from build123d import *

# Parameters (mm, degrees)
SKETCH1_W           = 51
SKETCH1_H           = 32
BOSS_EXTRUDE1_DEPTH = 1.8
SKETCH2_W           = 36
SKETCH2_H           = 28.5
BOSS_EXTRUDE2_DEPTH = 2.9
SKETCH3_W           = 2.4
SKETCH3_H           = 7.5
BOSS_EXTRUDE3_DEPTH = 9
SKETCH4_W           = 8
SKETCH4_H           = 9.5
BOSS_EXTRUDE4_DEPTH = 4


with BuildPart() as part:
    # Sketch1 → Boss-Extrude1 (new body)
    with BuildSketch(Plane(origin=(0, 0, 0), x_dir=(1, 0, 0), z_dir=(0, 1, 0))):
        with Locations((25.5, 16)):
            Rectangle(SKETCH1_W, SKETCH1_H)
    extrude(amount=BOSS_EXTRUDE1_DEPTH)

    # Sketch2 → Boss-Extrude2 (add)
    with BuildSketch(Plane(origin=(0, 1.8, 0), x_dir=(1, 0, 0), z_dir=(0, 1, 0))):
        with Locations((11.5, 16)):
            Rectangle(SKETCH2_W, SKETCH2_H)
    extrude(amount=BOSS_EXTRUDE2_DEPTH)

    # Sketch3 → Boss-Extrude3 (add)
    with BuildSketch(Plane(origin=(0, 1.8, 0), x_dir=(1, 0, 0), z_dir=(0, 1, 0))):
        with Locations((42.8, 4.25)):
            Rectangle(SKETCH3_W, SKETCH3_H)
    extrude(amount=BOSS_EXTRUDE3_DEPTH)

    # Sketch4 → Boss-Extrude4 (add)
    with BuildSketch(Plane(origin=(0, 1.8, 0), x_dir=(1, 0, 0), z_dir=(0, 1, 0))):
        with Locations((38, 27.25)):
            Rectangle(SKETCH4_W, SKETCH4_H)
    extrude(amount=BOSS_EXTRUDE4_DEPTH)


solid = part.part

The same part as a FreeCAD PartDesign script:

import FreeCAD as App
import Part
import Sketcher
from FreeCAD import Vector


def add_polygon(sketch, points):
    """Adds a closed chain of lines whose ends are joined by coincident constraints."""
    first, n = sketch.GeometryCount, len(points)
    for a, b in zip(points, points[1:] + points[:1]):
        sketch.addGeometry(Part.LineSegment(App.Vector(*a, 0), App.Vector(*b, 0)), False)
    for i in range(n):
        sketch.addConstraint(Sketcher.Constraint("Coincident", first + i, 2, first + (i + 1) % n, 1))

doc = App.newDocument("Part")
body = doc.addObject("PartDesign::Body", "Body")

sketch1 = body.newObject("Sketcher::SketchObject", "Sketch")
sketch1.AttachmentSupport = (doc.getObject("XZ_Plane"), [""])
sketch1.MapMode = "FlatFace"
add_polygon(sketch1, [(0, -32), (0, 0), (51, 0), (51, -32)])
sketch1.addConstraint([
    Sketcher.Constraint("Vertical", 0),
    Sketcher.Constraint("Horizontal", 1),
    Sketcher.Constraint("Vertical", 2),
    Sketcher.Constraint("Horizontal", 3),
    Sketcher.Constraint("Coincident", 0, 2, -1, 1),
    Sketcher.Constraint("DistanceX", 1, 1, 1, 2, 51.0),
    Sketcher.Constraint("DistanceY", 0, 1, 0, 2, 32.0),
])
pad1 = body.newObject("PartDesign::Pad", "Pad")
pad1.Profile = sketch1
pad1.Length = 1.8
pad1.Reversed = True

sketch2 = body.newObject("Sketcher::SketchObject", "Sketch001")
sketch2.AttachmentSupport = (doc.getObject("XZ_Plane"), [""])
sketch2.MapMode = "FlatFace"
sketch2.AttachmentOffset = App.Placement(Vector(0, 0, -1.8), App.Rotation())
add_polygon(sketch2, [(-6.5, -30.25), (-6.5, -1.75), (29.5, -1.75), (29.5, -30.25)])
sketch2.addConstraint([
    Sketcher.Constraint("Vertical", 0),
    Sketcher.Constraint("Horizontal", 1),
    Sketcher.Constraint("Vertical", 2),
    Sketcher.Constraint("Horizontal", 3),
    Sketcher.Constraint("DistanceX", 1, 1, 1, 2, 36.0),
    Sketcher.Constraint("DistanceY", 0, 1, 0, 2, 28.5),
    Sketcher.Constraint("DistanceX", 0, 2, -1, 1, 6.5),
    Sketcher.Constraint("DistanceY", 0, 2, -1, 1, 1.75),
])
pad2 = body.newObject("PartDesign::Pad", "Pad001")
pad2.Profile = sketch2
pad2.Length = 2.9
pad2.Reversed = True

sketch3 = body.newObject("Sketcher::SketchObject", "Sketch002")
sketch3.AttachmentSupport = (doc.getObject("XZ_Plane"), [""])
sketch3.MapMode = "FlatFace"
sketch3.AttachmentOffset = App.Placement(Vector(0, 0, -1.8), App.Rotation())
add_polygon(sketch3, [(41.6, -8), (41.6, -0.5), (44, -0.5), (44, -8)])
sketch3.addConstraint([
    Sketcher.Constraint("Vertical", 0),
    Sketcher.Constraint("Horizontal", 1),
    Sketcher.Constraint("Vertical", 2),
    Sketcher.Constraint("Horizontal", 3),
    Sketcher.Constraint("DistanceX", 1, 1, 1, 2, 2.4),
    Sketcher.Constraint("DistanceY", 0, 1, 0, 2, 7.5),
    Sketcher.Constraint("DistanceX", -1, 1, 1, 2, 44.0),
    Sketcher.Constraint("DistanceY", 2, 2, -1, 1, 8.0),
])
pad3 = body.newObject("PartDesign::Pad", "Pad002")
pad3.Profile = sketch3
pad3.Length = 9
pad3.Reversed = True

sketch4 = body.newObject("Sketcher::SketchObject", "Sketch003")
sketch4.AttachmentSupport = (doc.getObject("XZ_Plane"), [""])
sketch4.MapMode = "FlatFace"
sketch4.AttachmentOffset = App.Placement(Vector(0, 0, -1.8), App.Rotation())
add_polygon(sketch4, [(34, -32), (34, -22.5), (42, -22.5), (42, -32)])
sketch4.addConstraint([
    Sketcher.Constraint("Vertical", 0),
    Sketcher.Constraint("Horizontal", 1),
    Sketcher.Constraint("Vertical", 2),
    Sketcher.Constraint("Horizontal", 3),
    Sketcher.Constraint("DistanceX", 1, 1, 1, 2, 8.0),
    Sketcher.Constraint("DistanceY", 0, 1, 0, 2, 9.5),
    Sketcher.Constraint("DistanceX", -1, 1, 0, 2, 34.0),
    Sketcher.Constraint("DistanceY", 2, 2, -1, 1, 32.0),
])
pad4 = body.newObject("PartDesign::Pad", "Pad003")
pad4.Profile = sketch4
pad4.Length = 4
pad4.Reversed = True

doc.recompute()
